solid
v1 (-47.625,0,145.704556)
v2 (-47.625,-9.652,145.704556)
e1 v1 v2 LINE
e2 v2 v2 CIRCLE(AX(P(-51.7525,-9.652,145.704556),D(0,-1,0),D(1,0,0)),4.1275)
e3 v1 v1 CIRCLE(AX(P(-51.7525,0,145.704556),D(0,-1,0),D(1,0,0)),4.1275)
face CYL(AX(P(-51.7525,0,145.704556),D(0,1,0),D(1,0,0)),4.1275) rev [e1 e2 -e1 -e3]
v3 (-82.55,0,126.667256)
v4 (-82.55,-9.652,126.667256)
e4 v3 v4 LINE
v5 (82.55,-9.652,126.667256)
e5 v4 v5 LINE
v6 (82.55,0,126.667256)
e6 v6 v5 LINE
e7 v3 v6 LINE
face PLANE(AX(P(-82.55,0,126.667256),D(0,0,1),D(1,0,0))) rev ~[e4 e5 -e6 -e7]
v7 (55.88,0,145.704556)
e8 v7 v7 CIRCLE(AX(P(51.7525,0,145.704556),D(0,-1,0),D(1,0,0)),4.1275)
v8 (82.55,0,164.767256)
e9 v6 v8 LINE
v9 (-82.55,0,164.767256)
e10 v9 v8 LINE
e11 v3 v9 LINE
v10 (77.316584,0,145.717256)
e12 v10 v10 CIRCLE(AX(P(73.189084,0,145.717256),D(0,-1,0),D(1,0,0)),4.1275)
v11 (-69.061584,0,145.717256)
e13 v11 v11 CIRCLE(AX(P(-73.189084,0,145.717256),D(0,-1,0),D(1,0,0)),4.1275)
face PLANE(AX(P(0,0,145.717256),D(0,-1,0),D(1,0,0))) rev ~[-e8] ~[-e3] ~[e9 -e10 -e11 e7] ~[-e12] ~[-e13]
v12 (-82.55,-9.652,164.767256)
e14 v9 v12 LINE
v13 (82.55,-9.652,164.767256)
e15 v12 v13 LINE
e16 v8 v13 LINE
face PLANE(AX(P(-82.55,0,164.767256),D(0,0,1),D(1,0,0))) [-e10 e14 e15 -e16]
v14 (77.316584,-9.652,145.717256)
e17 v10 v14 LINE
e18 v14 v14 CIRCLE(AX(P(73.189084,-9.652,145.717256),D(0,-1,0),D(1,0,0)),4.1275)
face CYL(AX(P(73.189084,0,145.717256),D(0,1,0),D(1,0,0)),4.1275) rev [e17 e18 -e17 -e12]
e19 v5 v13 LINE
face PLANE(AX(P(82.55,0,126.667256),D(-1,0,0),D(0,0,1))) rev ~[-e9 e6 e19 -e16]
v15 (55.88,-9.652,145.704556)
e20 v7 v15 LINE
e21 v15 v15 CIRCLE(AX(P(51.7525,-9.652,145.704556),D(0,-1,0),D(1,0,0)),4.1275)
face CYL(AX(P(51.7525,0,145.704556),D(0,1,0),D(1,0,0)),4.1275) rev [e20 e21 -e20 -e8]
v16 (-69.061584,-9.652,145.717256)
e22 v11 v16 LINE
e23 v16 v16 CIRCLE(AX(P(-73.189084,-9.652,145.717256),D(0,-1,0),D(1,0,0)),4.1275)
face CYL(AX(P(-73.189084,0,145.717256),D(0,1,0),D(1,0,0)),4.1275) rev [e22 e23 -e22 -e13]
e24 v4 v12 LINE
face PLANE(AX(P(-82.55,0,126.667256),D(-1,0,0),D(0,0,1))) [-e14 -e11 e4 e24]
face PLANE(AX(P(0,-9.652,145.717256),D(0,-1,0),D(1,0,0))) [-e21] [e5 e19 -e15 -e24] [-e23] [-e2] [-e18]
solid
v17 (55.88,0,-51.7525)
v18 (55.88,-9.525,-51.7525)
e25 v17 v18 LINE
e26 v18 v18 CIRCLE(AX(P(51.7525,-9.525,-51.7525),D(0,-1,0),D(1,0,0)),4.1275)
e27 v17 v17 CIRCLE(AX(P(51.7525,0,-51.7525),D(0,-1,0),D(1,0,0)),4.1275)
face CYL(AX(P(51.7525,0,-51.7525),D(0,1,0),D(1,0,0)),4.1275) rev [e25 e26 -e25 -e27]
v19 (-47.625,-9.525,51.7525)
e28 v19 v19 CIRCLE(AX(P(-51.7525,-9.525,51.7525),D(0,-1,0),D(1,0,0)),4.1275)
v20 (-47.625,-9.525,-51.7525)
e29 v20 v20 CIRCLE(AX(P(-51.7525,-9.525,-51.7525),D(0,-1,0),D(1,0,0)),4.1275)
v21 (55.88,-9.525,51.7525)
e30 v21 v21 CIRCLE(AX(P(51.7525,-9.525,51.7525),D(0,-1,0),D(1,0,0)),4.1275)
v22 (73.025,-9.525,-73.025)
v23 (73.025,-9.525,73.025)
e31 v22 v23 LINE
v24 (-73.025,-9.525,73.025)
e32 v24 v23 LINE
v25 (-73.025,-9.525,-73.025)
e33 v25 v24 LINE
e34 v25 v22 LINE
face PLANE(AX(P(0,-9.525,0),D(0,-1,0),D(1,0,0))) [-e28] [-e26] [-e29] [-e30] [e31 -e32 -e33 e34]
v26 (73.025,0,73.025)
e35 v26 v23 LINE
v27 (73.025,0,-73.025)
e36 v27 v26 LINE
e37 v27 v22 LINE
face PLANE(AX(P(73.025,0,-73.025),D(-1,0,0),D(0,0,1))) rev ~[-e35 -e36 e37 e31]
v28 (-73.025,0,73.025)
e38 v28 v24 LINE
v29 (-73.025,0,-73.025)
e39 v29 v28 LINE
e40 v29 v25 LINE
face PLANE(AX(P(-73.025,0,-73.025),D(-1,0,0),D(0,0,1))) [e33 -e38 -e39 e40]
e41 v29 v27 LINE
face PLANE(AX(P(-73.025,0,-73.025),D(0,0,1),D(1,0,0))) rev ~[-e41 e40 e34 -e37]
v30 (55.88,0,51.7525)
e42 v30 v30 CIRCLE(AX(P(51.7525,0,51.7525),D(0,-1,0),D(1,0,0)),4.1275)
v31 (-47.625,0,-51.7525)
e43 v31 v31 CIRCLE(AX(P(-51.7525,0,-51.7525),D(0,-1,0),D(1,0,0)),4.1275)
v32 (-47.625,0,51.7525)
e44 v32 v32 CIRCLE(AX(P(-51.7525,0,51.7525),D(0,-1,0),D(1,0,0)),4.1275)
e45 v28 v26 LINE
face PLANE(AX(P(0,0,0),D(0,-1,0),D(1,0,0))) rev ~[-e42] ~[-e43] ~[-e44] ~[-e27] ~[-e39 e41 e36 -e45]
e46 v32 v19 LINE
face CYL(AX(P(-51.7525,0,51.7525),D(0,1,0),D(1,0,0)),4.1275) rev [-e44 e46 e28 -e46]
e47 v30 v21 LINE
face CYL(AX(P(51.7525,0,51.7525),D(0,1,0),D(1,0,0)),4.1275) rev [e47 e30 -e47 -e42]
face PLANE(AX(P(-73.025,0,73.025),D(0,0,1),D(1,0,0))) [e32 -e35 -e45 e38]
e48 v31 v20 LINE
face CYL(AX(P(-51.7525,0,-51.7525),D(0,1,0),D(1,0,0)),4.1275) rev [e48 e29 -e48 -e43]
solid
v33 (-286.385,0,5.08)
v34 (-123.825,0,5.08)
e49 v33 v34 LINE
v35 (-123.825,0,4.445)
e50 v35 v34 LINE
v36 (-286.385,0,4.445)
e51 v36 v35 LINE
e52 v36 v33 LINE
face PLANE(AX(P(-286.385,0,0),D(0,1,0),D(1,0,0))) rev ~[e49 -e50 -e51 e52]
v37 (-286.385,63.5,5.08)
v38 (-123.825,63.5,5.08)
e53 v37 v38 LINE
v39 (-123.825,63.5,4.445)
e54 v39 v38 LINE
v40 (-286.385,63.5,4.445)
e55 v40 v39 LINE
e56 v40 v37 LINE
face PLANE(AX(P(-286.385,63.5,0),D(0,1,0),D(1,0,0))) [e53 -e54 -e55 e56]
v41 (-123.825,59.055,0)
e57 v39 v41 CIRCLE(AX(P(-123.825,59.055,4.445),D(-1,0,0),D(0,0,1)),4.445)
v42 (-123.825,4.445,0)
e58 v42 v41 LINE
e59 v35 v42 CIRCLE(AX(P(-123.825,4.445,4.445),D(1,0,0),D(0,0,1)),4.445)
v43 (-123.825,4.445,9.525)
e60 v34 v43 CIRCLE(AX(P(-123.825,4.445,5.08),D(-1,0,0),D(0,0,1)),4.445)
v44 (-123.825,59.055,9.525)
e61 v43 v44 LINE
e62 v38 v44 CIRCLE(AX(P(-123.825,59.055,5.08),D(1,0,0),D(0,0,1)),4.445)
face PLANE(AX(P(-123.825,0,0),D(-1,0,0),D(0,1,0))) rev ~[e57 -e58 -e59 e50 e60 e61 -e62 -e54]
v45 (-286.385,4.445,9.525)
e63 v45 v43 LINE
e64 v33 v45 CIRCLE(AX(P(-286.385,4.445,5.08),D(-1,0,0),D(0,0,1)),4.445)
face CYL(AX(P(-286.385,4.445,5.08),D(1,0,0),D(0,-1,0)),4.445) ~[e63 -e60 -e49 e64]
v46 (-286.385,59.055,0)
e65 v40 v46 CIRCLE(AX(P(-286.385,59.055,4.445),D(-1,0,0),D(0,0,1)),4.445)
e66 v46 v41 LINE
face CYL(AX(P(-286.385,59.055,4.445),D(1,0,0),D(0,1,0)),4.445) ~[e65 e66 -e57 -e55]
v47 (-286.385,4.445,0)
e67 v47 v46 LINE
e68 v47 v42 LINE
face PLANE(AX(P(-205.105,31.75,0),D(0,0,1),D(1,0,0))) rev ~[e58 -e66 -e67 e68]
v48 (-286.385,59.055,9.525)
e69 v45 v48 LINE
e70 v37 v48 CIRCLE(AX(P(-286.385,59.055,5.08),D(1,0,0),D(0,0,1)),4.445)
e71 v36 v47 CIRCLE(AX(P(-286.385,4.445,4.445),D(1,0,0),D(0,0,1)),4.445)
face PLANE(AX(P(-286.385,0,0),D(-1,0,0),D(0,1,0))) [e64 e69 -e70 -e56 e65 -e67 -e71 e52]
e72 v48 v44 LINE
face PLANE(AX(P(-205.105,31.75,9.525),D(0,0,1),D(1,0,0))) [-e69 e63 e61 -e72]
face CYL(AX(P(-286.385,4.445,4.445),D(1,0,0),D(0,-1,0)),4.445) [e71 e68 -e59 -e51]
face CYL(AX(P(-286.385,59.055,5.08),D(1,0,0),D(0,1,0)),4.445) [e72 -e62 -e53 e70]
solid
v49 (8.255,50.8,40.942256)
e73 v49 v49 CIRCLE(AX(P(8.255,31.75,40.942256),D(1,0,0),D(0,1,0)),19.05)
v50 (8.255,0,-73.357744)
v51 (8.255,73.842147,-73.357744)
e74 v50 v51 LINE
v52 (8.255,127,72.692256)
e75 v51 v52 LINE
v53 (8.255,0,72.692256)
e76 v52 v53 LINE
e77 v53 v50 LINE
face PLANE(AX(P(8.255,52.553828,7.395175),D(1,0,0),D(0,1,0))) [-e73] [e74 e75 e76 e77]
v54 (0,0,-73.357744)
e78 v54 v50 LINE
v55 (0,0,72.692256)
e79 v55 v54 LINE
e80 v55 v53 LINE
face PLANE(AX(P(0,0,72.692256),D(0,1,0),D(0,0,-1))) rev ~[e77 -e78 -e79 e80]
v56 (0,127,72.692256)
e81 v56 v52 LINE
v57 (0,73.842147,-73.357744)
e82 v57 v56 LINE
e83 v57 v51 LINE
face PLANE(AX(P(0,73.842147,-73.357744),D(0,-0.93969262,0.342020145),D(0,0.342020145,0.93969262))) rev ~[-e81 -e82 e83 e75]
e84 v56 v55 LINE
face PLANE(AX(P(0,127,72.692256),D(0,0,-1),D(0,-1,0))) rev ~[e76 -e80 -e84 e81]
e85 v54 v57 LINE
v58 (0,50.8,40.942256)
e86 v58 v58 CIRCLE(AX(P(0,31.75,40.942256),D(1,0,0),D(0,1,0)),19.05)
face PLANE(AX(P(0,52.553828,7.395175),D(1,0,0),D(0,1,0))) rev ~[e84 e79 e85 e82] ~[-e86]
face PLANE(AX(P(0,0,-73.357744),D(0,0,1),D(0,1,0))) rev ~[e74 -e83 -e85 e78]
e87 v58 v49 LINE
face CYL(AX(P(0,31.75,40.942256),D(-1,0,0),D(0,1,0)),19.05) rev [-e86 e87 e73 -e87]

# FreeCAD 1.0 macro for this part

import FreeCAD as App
import Part
import Sketcher
from FreeCAD import Vector
Q = App.Units.Quantity


def edges_at(feature, points):
    """Names of the edges that pass closest to the given points."""
    edges = feature.Shape.Edges
    near = lambda p: min(range(len(edges)), key=lambda i: edges[i].distToShape(Part.Vertex(*p))[0])
    return sorted({f"Edge{near(p) + 1}" for p in points})


def add_polygon(sketch, points):
    """Adds a closed chain of lines whose ends are joined by coincident constraints."""
    first, n = sketch.GeometryCount, len(points)
    for a, b in zip(points, points[1:] + points[:1]):
        sketch.addGeometry(Part.LineSegment(App.Vector(*a, 0), App.Vector(*b, 0)), False)
    for i in range(n):
        sketch.addConstraint(Sketcher.Constraint("Coincident", first + i, 2, first + (i + 1) % n, 1))

doc = App.newDocument("Part")
body = doc.addObject("PartDesign::Body", "Body")

sketch1 = doc.addObject("Sketcher::SketchObject", "Sketch")
body.addObject(sketch1)
sketch1.AttachmentSupport = (doc.XZ_Plane, [""])
sketch1.MapMode = "FlatFace"
add_polygon(sketch1, [(-73, 73), (-73, -73), (73, -73), (73, 73)])
sketch1.addGeometry(Part.Circle(Vector(-51.8, -51.8, 0), Vector(0, 0, 1), 4.1), False)
sketch1.addGeometry(Part.Circle(Vector(51.8, -51.8, 0), Vector(0, 0, 1), 4.1), False)
sketch1.addGeometry(Part.Circle(Vector(-51.8, 51.8, 0), Vector(0, 0, 1), 4.1), False)
sketch1.addGeometry(Part.Circle(Vector(51.8, 51.8, 0), Vector(0, 0, 1), 4.1), False)
sketch1.addConstraint([
    Sketcher.Constraint("Vertical", 0),
    Sketcher.Constraint("Horizontal", 1),
    Sketcher.Constraint("Vertical", 2),
    Sketcher.Constraint("Horizontal", 3),
    Sketcher.Constraint("Equal", 4, 5),
    Sketcher.Constraint("Equal", 5, 6),
    Sketcher.Constraint("Equal", 6, 7),
    Sketcher.Constraint("Symmetric", 5, 3, 6, 3, -1, 1),
    Sketcher.Constraint("Symmetric", 4, 3, 7, 3, -1, 1),
    Sketcher.Constraint("Symmetric", 0, 2, 2, 2, -1, 1),
    Sketcher.Constraint("Symmetric", 4, 3, 5, 3, -2),
    Sketcher.Constraint("Equal", 3, 0),
    Sketcher.Constraint("Diameter", 4, Q("0.325 in")),
    Sketcher.Constraint("DistanceX", 1, 1, 1, 2, Q("5.75 in")),
    Sketcher.Constraint("DistanceX", 4, 3, 5, 3, Q("4.075 in")),
    Sketcher.Constraint("DistanceY", 4, 3, 6, 3, Q("4.075 in")),
])
pad1 = doc.addObject("PartDesign::Pad", "Pad")
body.addObject(pad1)
pad1.Profile = sketch1
pad1.Length = Q("0.375 in")
body2 = doc.addObject("PartDesign::Body", "Body001")

sketch2 = doc.addObject("Sketcher::SketchObject", "Sketch001")
body2.addObject(sketch2)
sketch2.AttachmentSupport = (doc.getObject("YZ_Plane001"), [""])
sketch2.MapMode = "FlatFace"
add_polygon(sketch2, [(0, 73), (0, -73), (74, -73), (127, 73)])
sketch2.addGeometry(Part.Circle(Vector(32, 41, 0), Vector(0, 0, 1), 19), False)
sketch2.addConstraint([
    Sketcher.Constraint("Vertical", 0),
    Sketcher.Constraint("Horizontal", 1),
    Sketcher.Constraint("Horizontal", 3),
    Sketcher.Constraint("PointOnObject", 0, 2, -2),
    Sketcher.Constraint("Diameter", 4, Q("1.5 in")),
    Sketcher.Constraint("DistanceX", 3, 2, 3, 1, Q("5 in")),
    Sketcher.Constraint("Angle", 2, Q("70 deg")),
    Sketcher.Constraint("DistanceY", 0, 2, 0, 1, Q("5.75 in")),
    Sketcher.Constraint("DistanceY", 0, 2, 4, 3, Q("4.5 in")),
    Sketcher.Constraint("DistanceX", -1, 1, 4, 3, Q("1.25 in")),
    Sketcher.Constraint("DistanceY", -1, 1, 4, 3, Q("1.6118998 in")),
])
pad2 = doc.addObject("PartDesign::Pad", "Pad001")
body2.addObject(pad2)
pad2.Profile = sketch2
pad2.Length = Q("0.325 in")
body3 = doc.addObject("PartDesign::Body", "Body002")

sketch3 = doc.addObject("Sketcher::SketchObject", "Sketch002")
body3.addObject(sketch3)
sketch3.AttachmentSupport = (doc.getObject("XY_Plane002"), [""])
sketch3.MapMode = "FlatFace"
add_polygon(sketch3, [(-286, 64), (-286, 0), (-124, 0), (-124, 64)])
sketch3.addConstraint([
    Sketcher.Constraint("Vertical", 0),
    Sketcher.Constraint("Horizontal", 1),
    Sketcher.Constraint("Vertical", 2),
    Sketcher.Constraint("Horizontal", 3),
    Sketcher.Constraint("PointOnObject", 0, 2, -1),
    Sketcher.Constraint("DistanceX", 1, 1, 1, 2, Q("6.4 in")),
    Sketcher.Constraint("DistanceY", 0, 2, 0, 1, Q("2.5 in")),
    Sketcher.Constraint("DistanceX", 0, 2, -1, 1, Q("11.275 in")),
])
pad3 = doc.addObject("PartDesign::Pad", "Pad002")
body3.addObject(pad3)
pad3.Profile = sketch3
pad3.Length = Q("0.375 in")
doc.recompute()

fillet = doc.addObject("PartDesign::Fillet", "Fillet")
body3.addObject(fillet)
fillet.Base = (pad3, edges_at(pad3, [
    (-205.105, 0, 9.525),
    (-205.105, 0, 0),
    (-205.105, 63.5, 9.525),
    (-205.105, 63.5, 0),
]))
fillet.Radius = Q("0.175 in")
body4 = doc.addObject("PartDesign::Body", "Body003")

sketch4 = doc.addObject("Sketcher::SketchObject", "Sketch003")
body4.addObject(sketch4)
sketch4.AttachmentSupport = (doc.getObject("XZ_Plane003"), [""])
sketch4.MapMode = "FlatFace"
add_polygon(sketch4, [(-82.5, 164.8), (-82.5, 126.7), (82.5, 126.7), (82.5, 164.8)])
sketch4.addGeometry(Part.Circle(Vector(-51.8, 145.7, 0), Vector(0, 0, 1), 4.1), False)
sketch4.addGeometry(Part.Circle(Vector(51.8, 145.7, 0), Vector(0, 0, 1), 4.1), False)
sketch4.addGeometry(Part.Circle(Vector(-73.2, 145.7, 0), Vector(0, 0, 1), 4.1), False)
sketch4.addGeometry(Part.Circle(Vector(73.2, 145.7, 0), Vector(0, 0, 1), 4.1), False)
sketch4.addConstraint([
    Sketcher.Constraint("Vertical", 0),
    Sketcher.Constraint("Horizontal", 1),
    Sketcher.Constraint("Vertical", 2),
    Sketcher.Constraint("Horizontal", 3),
    Sketcher.Constraint("Equal", 4, 5),
    Sketcher.Constraint("Equal", 5, 6),
    Sketcher.Constraint("Equal", 6, 7),
    Sketcher.Constraint("Symmetric", 4, 3, 5, 3, -2),
    Sketcher.Constraint("Symmetric", 6, 3, 7, 3, -2),
    Sketcher.Constraint("Diameter", 4, Q("0.325 in")),
    Sketcher.Constraint("DistanceX", 1, 1, 1, 2, Q("6.5 in")),
    Sketcher.Constraint("DistanceY", 0, 2, 0, 1, Q("1.5 in")),
    Sketcher.Constraint("DistanceX", 0, 2, -1, 1, Q("3.25 in")),
    Sketcher.Constraint("DistanceY", 0, 2, 6, 3, Q("0.75 in")),
    Sketcher.Constraint("DistanceX", 4, 3, 5, 3, Q("4.075 in")),
    Sketcher.Constraint("DistanceY", -1, 1, 4, 3, Q("5.7363998 in")),
    Sketcher.Constraint("DistanceY", -1, 1, 6, 3, Q("5.7368998 in")),
    Sketcher.Constraint("DistanceX", 6, 3, -1, 1, Q("73.189084 mm")),
])
pad4 = doc.addObject("PartDesign::Pad", "Pad003")
body4.addObject(pad4)
pad4.Profile = sketch4
pad4.Length = Q("0.38 in")

doc.recompute()
